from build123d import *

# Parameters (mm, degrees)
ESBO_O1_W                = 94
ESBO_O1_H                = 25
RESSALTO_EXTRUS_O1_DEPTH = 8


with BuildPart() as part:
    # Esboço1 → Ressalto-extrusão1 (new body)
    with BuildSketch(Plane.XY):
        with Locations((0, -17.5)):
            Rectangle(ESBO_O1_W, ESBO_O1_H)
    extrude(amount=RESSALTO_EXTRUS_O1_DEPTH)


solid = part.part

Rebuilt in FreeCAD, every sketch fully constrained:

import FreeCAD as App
import Part
import Sketcher
Q = App.Units.Quantity


def add_polygon(sketch, points):
    """Adds a closed chain of lines whose ends are joined by coincident constraints."""
    first, n = sketch.GeometryCount, len(points)
    for a, b in zip(points, points[1:] + points[:1]):
        sketch.addGeometry(Part.LineSegment(App.Vector(*a, 0), App.Vector(*b, 0)), False)
    for i in range(n):
        sketch.addConstraint(Sketcher.Constraint("Coincident", first + i, 2, first + (i + 1) % n, 1))

doc = App.newDocument("Part")
body = doc.addObject("PartDesign::Body", "Body")

sketch1 = doc.addObject("Sketcher::SketchObject", "Sketch")
body.addObject(sketch1)
sketch1.AttachmentSupport = (doc.XY_Plane, [""])
sketch1.MapMode = "FlatFace"
add_polygon(sketch1, [(-47, -5), (-47, -30), (47, -30), (47, -5)])
sketch1.addConstraint([
    Sketcher.Constraint("Vertical", 0),
    Sketcher.Constraint("Horizontal", 1),
    Sketcher.Constraint("Vertical", 2),
    Sketcher.Constraint("Horizontal", 3),
    Sketcher.Constraint("DistanceX", 1, 1, 1, 2, Q("94 mm")),
    Sketcher.Constraint("DistanceY", 0, 2, 0, 1, Q("25 mm")),
    Sketcher.Constraint("DistanceX", 0, 2, -1, 1, Q("47 mm")),
    Sketcher.Constraint("DistanceY", 0, 2, -1, 1, Q("30 mm")),
])
pad1 = doc.addObject("PartDesign::Pad", "Pad")
body.addObject(pad1)
pad1.Profile = sketch1
pad1.Length = 8

doc.recompute()
